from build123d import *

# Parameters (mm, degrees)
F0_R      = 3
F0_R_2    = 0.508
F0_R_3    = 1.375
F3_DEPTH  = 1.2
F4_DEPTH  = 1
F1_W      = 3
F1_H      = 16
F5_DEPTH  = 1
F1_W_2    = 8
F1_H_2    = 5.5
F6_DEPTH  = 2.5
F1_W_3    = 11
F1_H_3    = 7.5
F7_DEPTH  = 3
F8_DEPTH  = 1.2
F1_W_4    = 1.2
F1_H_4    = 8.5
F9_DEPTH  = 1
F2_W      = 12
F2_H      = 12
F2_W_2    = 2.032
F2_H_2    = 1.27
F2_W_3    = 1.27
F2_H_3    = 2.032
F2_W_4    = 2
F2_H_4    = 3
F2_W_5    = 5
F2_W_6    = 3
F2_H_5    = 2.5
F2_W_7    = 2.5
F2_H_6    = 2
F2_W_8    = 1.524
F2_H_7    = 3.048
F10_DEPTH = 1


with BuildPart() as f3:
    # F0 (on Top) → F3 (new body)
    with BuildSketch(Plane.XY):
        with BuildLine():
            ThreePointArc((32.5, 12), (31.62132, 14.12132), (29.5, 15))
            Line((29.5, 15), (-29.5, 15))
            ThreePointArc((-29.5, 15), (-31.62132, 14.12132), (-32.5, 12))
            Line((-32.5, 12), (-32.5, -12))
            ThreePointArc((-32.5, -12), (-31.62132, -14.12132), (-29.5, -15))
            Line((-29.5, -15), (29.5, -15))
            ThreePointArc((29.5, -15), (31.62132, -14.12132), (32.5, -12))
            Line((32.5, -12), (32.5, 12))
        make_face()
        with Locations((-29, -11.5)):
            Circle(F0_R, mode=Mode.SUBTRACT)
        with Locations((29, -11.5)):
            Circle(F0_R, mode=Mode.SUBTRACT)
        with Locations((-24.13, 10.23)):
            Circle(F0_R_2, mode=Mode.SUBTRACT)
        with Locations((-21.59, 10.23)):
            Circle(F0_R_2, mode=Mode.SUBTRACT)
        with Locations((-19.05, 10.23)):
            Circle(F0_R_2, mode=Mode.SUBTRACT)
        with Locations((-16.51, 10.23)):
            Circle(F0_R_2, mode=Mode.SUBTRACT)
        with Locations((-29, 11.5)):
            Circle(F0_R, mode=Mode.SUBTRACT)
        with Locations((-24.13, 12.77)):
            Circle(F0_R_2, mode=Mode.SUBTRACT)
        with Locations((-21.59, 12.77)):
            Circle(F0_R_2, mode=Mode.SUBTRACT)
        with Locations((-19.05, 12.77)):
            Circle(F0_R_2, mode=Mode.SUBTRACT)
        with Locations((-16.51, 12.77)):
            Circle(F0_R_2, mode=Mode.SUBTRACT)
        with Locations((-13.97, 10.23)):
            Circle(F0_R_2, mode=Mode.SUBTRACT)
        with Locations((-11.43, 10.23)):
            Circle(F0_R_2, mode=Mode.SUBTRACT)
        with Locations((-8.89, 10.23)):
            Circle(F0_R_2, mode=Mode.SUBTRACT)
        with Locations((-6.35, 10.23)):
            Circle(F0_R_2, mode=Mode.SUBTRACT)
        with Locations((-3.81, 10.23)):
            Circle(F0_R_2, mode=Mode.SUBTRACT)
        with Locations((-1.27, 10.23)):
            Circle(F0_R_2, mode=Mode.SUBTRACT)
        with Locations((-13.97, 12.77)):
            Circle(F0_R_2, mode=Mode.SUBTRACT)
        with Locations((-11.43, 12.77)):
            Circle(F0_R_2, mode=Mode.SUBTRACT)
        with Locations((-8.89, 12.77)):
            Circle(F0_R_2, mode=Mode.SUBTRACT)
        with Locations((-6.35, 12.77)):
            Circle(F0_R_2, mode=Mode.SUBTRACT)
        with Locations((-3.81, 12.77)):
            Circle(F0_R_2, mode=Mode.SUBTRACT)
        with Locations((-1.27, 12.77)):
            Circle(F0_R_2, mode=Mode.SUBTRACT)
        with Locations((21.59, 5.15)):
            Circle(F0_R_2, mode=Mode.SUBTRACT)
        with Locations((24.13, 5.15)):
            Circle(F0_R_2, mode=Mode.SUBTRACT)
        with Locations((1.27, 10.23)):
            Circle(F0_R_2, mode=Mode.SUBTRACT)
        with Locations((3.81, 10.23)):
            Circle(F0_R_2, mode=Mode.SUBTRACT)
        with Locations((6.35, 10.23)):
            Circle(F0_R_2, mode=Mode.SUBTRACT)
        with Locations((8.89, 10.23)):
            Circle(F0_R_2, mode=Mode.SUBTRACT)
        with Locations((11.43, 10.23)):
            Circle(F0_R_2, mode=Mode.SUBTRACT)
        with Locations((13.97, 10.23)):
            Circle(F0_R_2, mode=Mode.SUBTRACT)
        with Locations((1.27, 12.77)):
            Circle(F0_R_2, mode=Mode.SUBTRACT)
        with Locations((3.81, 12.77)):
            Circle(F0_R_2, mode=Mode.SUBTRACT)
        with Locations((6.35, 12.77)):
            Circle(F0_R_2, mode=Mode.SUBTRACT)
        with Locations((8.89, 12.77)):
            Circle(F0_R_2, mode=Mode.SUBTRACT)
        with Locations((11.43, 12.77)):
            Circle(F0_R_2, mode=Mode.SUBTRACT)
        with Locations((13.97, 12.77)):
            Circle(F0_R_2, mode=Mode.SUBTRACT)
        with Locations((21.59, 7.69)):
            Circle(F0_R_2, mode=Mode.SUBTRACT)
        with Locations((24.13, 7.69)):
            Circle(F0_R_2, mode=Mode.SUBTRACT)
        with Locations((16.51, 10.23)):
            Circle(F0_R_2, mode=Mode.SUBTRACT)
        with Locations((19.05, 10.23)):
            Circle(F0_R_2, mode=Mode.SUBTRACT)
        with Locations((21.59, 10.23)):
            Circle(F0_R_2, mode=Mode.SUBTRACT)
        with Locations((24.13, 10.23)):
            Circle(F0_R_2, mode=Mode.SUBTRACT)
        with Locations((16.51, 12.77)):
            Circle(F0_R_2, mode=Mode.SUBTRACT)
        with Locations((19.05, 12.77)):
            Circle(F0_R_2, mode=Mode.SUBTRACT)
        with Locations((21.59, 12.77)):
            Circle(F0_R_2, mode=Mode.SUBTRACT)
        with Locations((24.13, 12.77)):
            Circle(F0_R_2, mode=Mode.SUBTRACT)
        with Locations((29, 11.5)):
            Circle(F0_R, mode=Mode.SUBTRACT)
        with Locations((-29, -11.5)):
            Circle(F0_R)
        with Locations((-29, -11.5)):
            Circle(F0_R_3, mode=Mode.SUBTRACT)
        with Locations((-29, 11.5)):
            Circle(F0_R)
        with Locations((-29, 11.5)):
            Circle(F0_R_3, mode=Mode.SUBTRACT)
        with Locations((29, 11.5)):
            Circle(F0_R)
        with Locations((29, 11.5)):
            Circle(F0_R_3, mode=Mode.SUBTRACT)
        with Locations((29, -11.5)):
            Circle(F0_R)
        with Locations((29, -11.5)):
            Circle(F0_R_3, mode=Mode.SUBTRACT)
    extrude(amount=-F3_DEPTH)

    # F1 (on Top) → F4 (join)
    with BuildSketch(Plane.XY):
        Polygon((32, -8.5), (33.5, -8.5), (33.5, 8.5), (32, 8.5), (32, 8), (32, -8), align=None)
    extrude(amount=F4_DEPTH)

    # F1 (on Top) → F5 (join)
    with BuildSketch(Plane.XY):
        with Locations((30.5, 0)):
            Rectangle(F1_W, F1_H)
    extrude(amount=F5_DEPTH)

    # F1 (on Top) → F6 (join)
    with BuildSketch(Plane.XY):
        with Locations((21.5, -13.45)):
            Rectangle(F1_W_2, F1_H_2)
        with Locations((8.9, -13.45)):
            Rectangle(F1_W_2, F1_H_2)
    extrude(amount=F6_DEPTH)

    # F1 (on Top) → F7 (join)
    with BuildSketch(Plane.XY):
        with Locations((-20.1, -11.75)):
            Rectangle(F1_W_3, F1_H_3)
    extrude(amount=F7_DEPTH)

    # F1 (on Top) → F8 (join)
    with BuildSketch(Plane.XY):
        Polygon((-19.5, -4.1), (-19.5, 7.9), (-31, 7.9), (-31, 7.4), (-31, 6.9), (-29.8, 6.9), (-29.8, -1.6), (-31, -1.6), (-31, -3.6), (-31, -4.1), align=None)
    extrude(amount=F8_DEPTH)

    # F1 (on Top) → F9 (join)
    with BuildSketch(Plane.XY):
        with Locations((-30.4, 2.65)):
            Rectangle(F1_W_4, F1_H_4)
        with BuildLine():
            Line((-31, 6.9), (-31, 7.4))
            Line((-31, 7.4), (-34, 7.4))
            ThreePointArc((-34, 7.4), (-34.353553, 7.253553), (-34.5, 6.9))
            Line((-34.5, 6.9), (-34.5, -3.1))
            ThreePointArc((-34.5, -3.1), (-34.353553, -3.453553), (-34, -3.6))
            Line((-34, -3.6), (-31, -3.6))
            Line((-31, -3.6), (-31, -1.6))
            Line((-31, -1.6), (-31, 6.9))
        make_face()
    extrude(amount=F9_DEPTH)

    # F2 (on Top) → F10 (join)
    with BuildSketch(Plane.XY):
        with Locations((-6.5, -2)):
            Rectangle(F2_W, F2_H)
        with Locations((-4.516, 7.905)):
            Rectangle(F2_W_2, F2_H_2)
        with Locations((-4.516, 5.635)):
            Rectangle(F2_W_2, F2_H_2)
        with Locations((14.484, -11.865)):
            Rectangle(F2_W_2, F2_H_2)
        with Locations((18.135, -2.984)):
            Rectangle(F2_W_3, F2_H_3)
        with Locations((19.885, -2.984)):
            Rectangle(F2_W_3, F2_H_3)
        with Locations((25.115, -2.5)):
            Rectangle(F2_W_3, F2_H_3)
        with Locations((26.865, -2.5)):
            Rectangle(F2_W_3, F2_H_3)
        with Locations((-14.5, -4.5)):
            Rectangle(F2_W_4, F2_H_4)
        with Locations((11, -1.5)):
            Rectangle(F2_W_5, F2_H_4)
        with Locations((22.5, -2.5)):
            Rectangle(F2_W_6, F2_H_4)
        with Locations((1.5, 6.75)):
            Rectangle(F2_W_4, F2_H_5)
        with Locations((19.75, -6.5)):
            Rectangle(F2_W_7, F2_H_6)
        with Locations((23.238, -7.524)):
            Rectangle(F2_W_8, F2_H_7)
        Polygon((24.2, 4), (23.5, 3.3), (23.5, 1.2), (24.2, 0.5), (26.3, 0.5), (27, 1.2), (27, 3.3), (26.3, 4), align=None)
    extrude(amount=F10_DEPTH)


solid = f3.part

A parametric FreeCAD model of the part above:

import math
import FreeCAD as App
import Part
import Sketcher
from FreeCAD import Vector
Q = App.Units.Quantity


def add_polygon(sketch, points):
    """Adds a closed chain of lines whose ends are joined by coincident constraints."""
    first, n = sketch.GeometryCount, len(points)
    for a, b in zip(points, points[1:] + points[:1]):
        sketch.addGeometry(Part.LineSegment(App.Vector(*a, 0), App.Vector(*b, 0)), False)
    for i in range(n):
        sketch.addConstraint(Sketcher.Constraint("Coincident", first + i, 2, first + (i + 1) % n, 1))

doc = App.newDocument("Part")
body = doc.addObject("PartDesign::Body", "Body")

# Sketch on XY plane
sketch1 = body.newObject("Sketcher::SketchObject", "Sketch")
sketch1.AttachmentSupport = (doc.getObject("XY_Plane"), [""])
sketch1.MapMode = "FlatFace"
sketch1.addGeometry(Part.ArcOfCircle(Part.Circle(Vector(29.5, 12, 0), Vector(0, 0, 1), 3), math.radians(0), math.radians(90)), False)
sketch1.addGeometry(Part.LineSegment(Vector(29.5, 15, 0), Vector(-29.5, 15, 0)), False)
sketch1.addGeometry(Part.ArcOfCircle(Part.Circle(Vector(-29.5, 12, 0), Vector(0, 0, 1), 3), math.radians(90), math.radians(180)), False)
sketch1.addGeometry(Part.LineSegment(Vector(-32.5, 12, 0), Vector(-32.5, -12, 0)), False)
sketch1.addGeometry(Part.ArcOfCircle(Part.Circle(Vector(-29.5, -12, 0), Vector(0, 0, 1), 3), math.radians(-180), math.radians(-90)), False)
sketch1.addGeometry(Part.LineSegment(Vector(-29.5, -15, 0), Vector(29.5, -15, 0)), False)
sketch1.addGeometry(Part.ArcOfCircle(Part.Circle(Vector(29.5, -12, 0), Vector(0, 0, 1), 3), math.radians(-90), math.radians(0)), False)
sketch1.addGeometry(Part.LineSegment(Vector(32.5, -12, 0), Vector(32.5, 12, 0)), False)
sketch1.addGeometry(Part.Circle(Vector(-29, -11.5, 0), Vector(0, 0, 1), 1.4), False)
sketch1.addGeometry(Part.Circle(Vector(29, -11.5, 0), Vector(0, 0, 1), 1.4), False)
sketch1.addGeometry(Part.Circle(Vector(-29, 11.5, 0), Vector(0, 0, 1), 1.4), False)
sketch1.addGeometry(Part.Circle(Vector(-24.1, 10.2, 0), Vector(0, 0, 1), 0.5), False)
sketch1.addGeometry(Part.Circle(Vector(-24.1, 12.8, 0), Vector(0, 0, 1), 0.5), False)
sketch1.addGeometry(Part.Circle(Vector(-21.6, 10.2, 0), Vector(0, 0, 1), 0.5), False)
sketch1.addGeometry(Part.Circle(Vector(-19.1, 10.2, 0), Vector(0, 0, 1), 0.5), False)
sketch1.addGeometry(Part.Circle(Vector(-16.5, 10.2, 0), Vector(0, 0, 1), 0.5), False)
sketch1.addGeometry(Part.Circle(Vector(-21.6, 12.8, 0), Vector(0, 0, 1), 0.5), False)
sketch1.addGeometry(Part.Circle(Vector(-19.1, 12.8, 0), Vector(0, 0, 1), 0.5), False)
sketch1.addGeometry(Part.Circle(Vector(-16.5, 12.8, 0), Vector(0, 0, 1), 0.5), False)
sketch1.addGeometry(Part.Circle(Vector(-14, 10.2, 0), Vector(0, 0, 1), 0.5), False)
sketch1.addGeometry(Part.Circle(Vector(-11.4, 10.2, 0), Vector(0, 0, 1), 0.5), False)
sketch1.addGeometry(Part.Circle(Vector(-8.9, 10.2, 0), Vector(0, 0, 1), 0.5), False)
sketch1.addGeometry(Part.Circle(Vector(-14, 12.8, 0), Vector(0, 0, 1), 0.5), False)
sketch1.addGeometry(Part.Circle(Vector(-11.4, 12.8, 0), Vector(0, 0, 1), 0.5), False)
sketch1.addGeometry(Part.Circle(Vector(-8.9, 12.8, 0), Vector(0, 0, 1), 0.5), False)
sketch1.addGeometry(Part.Circle(Vector(-6.3, 10.2, 0), Vector(0, 0, 1), 0.5), False)
sketch1.addGeometry(Part.Circle(Vector(-3.8, 10.2, 0), Vector(0, 0, 1), 0.5), False)
sketch1.addGeometry(Part.Circle(Vector(-1.3, 10.2, 0), Vector(0, 0, 1), 0.5), False)
sketch1.addGeometry(Part.Circle(Vector(-6.3, 12.8, 0), Vector(0, 0, 1), 0.5), False)
sketch1.addGeometry(Part.Circle(Vector(-3.8, 12.8, 0), Vector(0, 0, 1), 0.5), False)
sketch1.addGeometry(Part.Circle(Vector(-1.3, 12.8, 0), Vector(0, 0, 1), 0.5), False)
sketch1.addGeometry(Part.Circle(Vector(21.6, 5.2, 0), Vector(0, 0, 1), 0.5), False)
sketch1.addGeometry(Part.Circle(Vector(24.1, 5.2, 0), Vector(0, 0, 1), 0.5), False)
sketch1.addGeometry(Part.Circle(Vector(1.3, 10.2, 0), Vector(0, 0, 1), 0.5), False)
sketch1.addGeometry(Part.Circle(Vector(3.8, 10.2, 0), Vector(0, 0, 1), 0.5), False)
sketch1.addGeometry(Part.Circle(Vector(6.3, 10.2, 0), Vector(0, 0, 1), 0.5), False)
sketch1.addGeometry(Part.Circle(Vector(1.3, 12.8, 0), Vector(0, 0, 1), 0.5), False)
sketch1.addGeometry(Part.Circle(Vector(3.8, 12.8, 0), Vector(0, 0, 1), 0.5), False)
sketch1.addGeometry(Part.Circle(Vector(6.3, 12.8, 0), Vector(0, 0, 1), 0.5), False)
sketch1.addGeometry(Part.Circle(Vector(8.9, 10.2, 0), Vector(0, 0, 1), 0.5), False)
sketch1.addGeometry(Part.Circle(Vector(11.4, 10.2, 0), Vector(0, 0, 1), 0.5), False)
sketch1.addGeometry(Part.Circle(Vector(14, 10.2, 0), Vector(0, 0, 1), 0.5), False)
sketch1.addGeometry(Part.Circle(Vector(8.9, 12.8, 0), Vector(0, 0, 1), 0.5), False)
sketch1.addGeometry(Part.Circle(Vector(11.4, 12.8, 0), Vector(0, 0, 1), 0.5), False)
sketch1.addGeometry(Part.Circle(Vector(14, 12.8, 0), Vector(0, 0, 1), 0.5), False)
sketch1.addGeometry(Part.Circle(Vector(21.6, 7.7, 0), Vector(0, 0, 1), 0.5), False)
sketch1.addGeometry(Part.Circle(Vector(24.1, 7.7, 0), Vector(0, 0, 1), 0.5), False)
sketch1.addGeometry(Part.Circle(Vector(16.5, 10.2, 0), Vector(0, 0, 1), 0.5), False)
sketch1.addGeometry(Part.Circle(Vector(19.1, 10.2, 0), Vector(0, 0, 1), 0.5), False)
sketch1.addGeometry(Part.Circle(Vector(21.6, 10.2, 0), Vector(0, 0, 1), 0.5), False)
sketch1.addGeometry(Part.Circle(Vector(16.5, 12.8, 0), Vector(0, 0, 1), 0.5), False)
sketch1.addGeometry(Part.Circle(Vector(19.1, 12.8, 0), Vector(0, 0, 1), 0.5), False)
sketch1.addGeometry(Part.Circle(Vector(21.6, 12.8, 0), Vector(0, 0, 1), 0.5), False)
sketch1.addGeometry(Part.Circle(Vector(24.1, 10.2, 0), Vector(0, 0, 1), 0.5), False)
sketch1.addGeometry(Part.Circle(Vector(29, 11.5, 0), Vector(0, 0, 1), 1.4), False)
sketch1.addGeometry(Part.Circle(Vector(24.1, 12.8, 0), Vector(0, 0, 1), 0.5), False)
sketch1.addConstraint(Sketcher.Constraint("Tangent", 0, 2, 1, 1))
sketch1.addConstraint(Sketcher.Constraint("Tangent", 1, 2, 2, 1))
sketch1.addConstraint(Sketcher.Constraint("Tangent", 2, 2, 3, 1))
sketch1.addConstraint(Sketcher.Constraint("Tangent", 3, 2, 4, 1))
sketch1.addConstraint(Sketcher.Constraint("Tangent", 4, 2, 5, 1))
sketch1.addConstraint(Sketcher.Constraint("Tangent", 5, 2, 6, 1))
sketch1.addConstraint(Sketcher.Constraint("Tangent", 6, 2, 7, 1))
sketch1.addConstraint(Sketcher.Constraint("Tangent", 7, 2, 0, 1))
sketch1.addConstraint(Sketcher.Constraint("Horizontal", 1))
sketch1.addConstraint(Sketcher.Constraint("Vertical", 3))
sketch1.addConstraint(Sketcher.Constraint("Horizontal", 5))
sketch1.addConstraint(Sketcher.Constraint("Vertical", 7))
sketch1.addConstraint(Sketcher.Constraint("Equal", 0, 2))
sketch1.addConstraint(Sketcher.Constraint("Equal", 2, 4))
sketch1.addConstraint(Sketcher.Constraint("Equal", 4, 6))
sketch1.addConstraint(Sketcher.Constraint("Equal", 8, 9))
sketch1.addConstraint(Sketcher.Constraint("Equal", 9, 10))
sketch1.addConstraint(Sketcher.Constraint("Equal", 11, 12))
sketch1.addConstraint(Sketcher.Constraint("Equal", 12, 13))
sketch1.addConstraint(Sketcher.Constraint("Equal", 13, 14))
sketch1.addConstraint(Sketcher.Constraint("Equal", 14, 15))
sketch1.addConstraint(Sketcher.Constraint("Equal", 15, 16))
sketch1.addConstraint(Sketcher.Constraint("Equal", 16, 17))
sketch1.addConstraint(Sketcher.Constraint("Equal", 17, 18))
sketch1.addConstraint(Sketcher.Constraint("Equal", 18, 19))
sketch1.addConstraint(Sketcher.Constraint("Equal", 19, 20))
sketch1.addConstraint(Sketcher.Constraint("Equal", 20, 21))
sketch1.addConstraint(Sketcher.Constraint("Equal", 21, 22))
sketch1.addConstraint(Sketcher.Constraint("Equal", 22, 23))
sketch1.addConstraint(Sketcher.Constraint("Equal", 23, 24))
sketch1.addConstraint(Sketcher.Constraint("Equal", 24, 25))
sketch1.addConstraint(Sketcher.Constraint("Equal", 25, 26))
sketch1.addConstraint(Sketcher.Constraint("Equal", 26, 27))
sketch1.addConstraint(Sketcher.Constraint("Equal", 27, 28))
sketch1.addConstraint(Sketcher.Constraint("Equal", 28, 29))
sketch1.addConstraint(Sketcher.Constraint("Equal", 29, 30))
sketch1.addConstraint(Sketcher.Constraint("Equal", 30, 31))
sketch1.addConstraint(Sketcher.Constraint("Equal", 31, 32))
sketch1.addConstraint(Sketcher.Constraint("Equal", 32, 33))
sketch1.addConstraint(Sketcher.Constraint("Equal", 33, 34))
sketch1.addConstraint(Sketcher.Constraint("Equal", 34, 35))
sketch1.addConstraint(Sketcher.Constraint("Equal", 35, 36))
sketch1.addConstraint(Sketcher.Constraint("Equal", 36, 37))
sketch1.addConstraint(Sketcher.Constraint("Equal", 37, 38))
sketch1.addConstraint(Sketcher.Constraint("Equal", 38, 39))
sketch1.addConstraint(Sketcher.Constraint("Equal", 39, 40))
sketch1.addConstraint(Sketcher.Constraint("Equal", 40, 41))
sketch1.addConstraint(Sketcher.Constraint("Equal", 41, 42))
sketch1.addConstraint(Sketcher.Constraint("Equal", 42, 43))
sketch1.addConstraint(Sketcher.Constraint("Equal", 43, 44))
sketch1.addConstraint(Sketcher.Constraint("Equal", 44, 45))
sketch1.addConstraint(Sketcher.Constraint("Equal", 45, 46))
sketch1.addConstraint(Sketcher.Constraint("Equal", 46, 47))
sketch1.addConstraint(Sketcher.Constraint("Equal", 47, 48))
sketch1.addConstraint(Sketcher.Constraint("Equal", 48, 49))
sketch1.addConstraint(Sketcher.Constraint("Equal", 49, 50))
sketch1.addConstraint(Sketcher.Constraint("Equal", 50, 51))
sketch1.addConstraint(Sketcher.Constraint("Equal", 51, 52))
sketch1.addConstraint(Sketcher.Constraint("Equal", 52, 53))
sketch1.addConstraint(Sketcher.Constraint("Equal", 10, 54))
sketch1.addConstraint(Sketcher.Constraint("Equal", 53, 55))
sketch1.addConstraint(Sketcher.Constraint("Symmetric", 0, 3, 4, 3, -1, 1))
sketch1.addConstraint(Sketcher.Constraint("Symmetric", 9, 3, 10, 3, -1, 1))
sketch1.addConstraint(Sketcher.Constraint("Symmetric", 8, 3, 54, 3, -1, 1))
sketch1.addConstraint(Sketcher.Constraint("Symmetric", 8, 3, 9, 3, -2))
sketch1.addConstraint(Sketcher.Constraint("Symmetric", 27, 3, 33, 3, -2))
sketch1.addConstraint(Sketcher.Constraint("Symmetric", 26, 3, 34, 3, -2))
sketch1.addConstraint(Sketcher.Constraint("Symmetric", 25, 3, 35, 3, -2))
sketch1.addConstraint(Sketcher.Constraint("Symmetric", 30, 3, 36, 3, -2))
sketch1.addConstraint(Sketcher.Constraint("Symmetric", 29, 3, 37, 3, -2))
sketch1.addConstraint(Sketcher.Constraint("Symmetric", 28, 3, 38, 3, -2))
sketch1.addConstraint(Sketcher.Constraint("Symmetric", 21, 3, 39, 3, -2))
sketch1.addConstraint(Sketcher.Constraint("Symmetric", 20, 3, 40, 3, -2))
sketch1.addConstraint(Sketcher.Constraint("Symmetric", 19, 3, 41, 3, -2))
sketch1.addConstraint(Sketcher.Constraint("Symmetric", 24, 3, 42, 3, -2))
sketch1.addConstraint(Sketcher.Constraint("Symmetric", 23, 3, 43, 3, -2))
sketch1.addConstraint(Sketcher.Constraint("Symmetric", 22, 3, 44, 3, -2))
sketch1.addConstraint(Sketcher.Constraint("Symmetric", 15, 3, 47, 3, -2))
sketch1.addConstraint(Sketcher.Constraint("Symmetric", 14, 3, 48, 3, -2))
sketch1.addConstraint(Sketcher.Constraint("Symmetric", 13, 3, 49, 3, -2))
sketch1.addConstraint(Sketcher.Constraint("Symmetric", 18, 3, 50, 3, -2))
sketch1.addConstraint(Sketcher.Constraint("Symmetric", 17, 3, 51, 3, -2))
sketch1.addConstraint(Sketcher.Constraint("Symmetric", 16, 3, 52, 3, -2))
sketch1.addConstraint(Sketcher.Constraint("Symmetric", 11, 3, 53, 3, -2))
sketch1.addConstraint(Sketcher.Constraint("Symmetric", 12, 3, 55, 3, -2))
sketch1.addConstraint(Sketcher.Constraint("Horizontal", 11, 3, 13, 3))
sketch1.addConstraint(Sketcher.Constraint("Horizontal", 13, 3, 14, 3))
sketch1.addConstraint(Sketcher.Constraint("Horizontal", 14, 3, 15, 3))
sketch1.addConstraint(Sketcher.Constraint("Horizontal", 12, 3, 16, 3))
sketch1.addConstraint(Sketcher.Constraint("Horizontal", 16, 3, 17, 3))
sketch1.addConstraint(Sketcher.Constraint("Horizontal", 17, 3, 18, 3))
sketch1.addConstraint(Sketcher.Constraint("Horizontal", 15, 3, 19, 3))
sketch1.addConstraint(Sketcher.Constraint("Horizontal", 19, 3, 20, 3))
sketch1.addConstraint(Sketcher.Constraint("Horizontal", 20, 3, 21, 3))
sketch1.addConstraint(Sketcher.Constraint("Horizontal", 18, 3, 22, 3))
sketch1.addConstraint(Sketcher.Constraint("Horizontal", 22, 3, 23, 3))
sketch1.addConstraint(Sketcher.Constraint("Horizontal", 23, 3, 24, 3))
sketch1.addConstraint(Sketcher.Constraint("Horizontal", 21, 3, 25, 3))
sketch1.addConstraint(Sketcher.Constraint("Horizontal", 25, 3, 26, 3))
sketch1.addConstraint(Sketcher.Constraint("Horizontal", 26, 3, 27, 3))
sketch1.addConstraint(Sketcher.Constraint("Horizontal", 24, 3, 28, 3))
sketch1.addConstraint(Sketcher.Constraint("Horizontal", 28, 3, 29, 3))
sketch1.addConstraint(Sketcher.Constraint("Horizontal", 29, 3, 30, 3))
sketch1.addConstraint(Sketcher.Constraint("Horizontal", 31, 3, 32, 3))
sketch1.addConstraint(Sketcher.Constraint("Horizontal", 45, 3, 46, 3))
sketch1.addConstraint(Sketcher.Constraint("Vertical", 11, 3, 12, 3))
sketch1.addConstraint(Sketcher.Constraint("Vertical", 13, 3, 16, 3))
sketch1.addConstraint(Sketcher.Constraint("Vertical", 14, 3, 17, 3))
sketch1.addConstraint(Sketcher.Constraint("Vertical", 15, 3, 18, 3))
sketch1.addConstraint(Sketcher.Constraint("Vertical", 19, 3, 22, 3))
sketch1.addConstraint(Sketcher.Constraint("Vertical", 20, 3, 23, 3))
sketch1.addConstraint(Sketcher.Constraint("Vertical", 21, 3, 24, 3))
sketch1.addConstraint(Sketcher.Constraint("Vertical", 25, 3, 28, 3))
sketch1.addConstraint(Sketcher.Constraint("Vertical", 26, 3, 29, 3))
sketch1.addConstraint(Sketcher.Constraint("Vertical", 27, 3, 30, 3))
sketch1.addConstraint(Sketcher.Constraint("Vertical", 31, 3, 45, 3))
sketch1.addConstraint(Sketcher.Constraint("Vertical", 32, 3, 46, 3))
sketch1.addConstraint(Sketcher.Constraint("Vertical", 45, 3, 49, 3))
sketch1.addConstraint(Sketcher.Constraint("Vertical", 46, 3, 53, 3))
sketch1.addConstraint(Sketcher.Constraint("Radius", 0, Q("3.000001 mm")))
sketch1.addConstraint(Sketcher.Constraint("Diameter", 8, Q("2.75 mm")))
sketch1.addConstraint(Sketcher.Constraint("DistanceX", 1, 2, 1, 1, Q("59 mm")))
sketch1.addConstraint(Sketcher.Constraint("DistanceY", 3, 2, 3, 1, Q("24 mm")))
sketch1.addConstraint(Sketcher.Constraint("Diameter", 11, Q("1.016 mm")))
sketch1.addConstraint(Sketcher.Constraint("DistanceX", 8, 3, -1, 1, Q("29 mm")))
sketch1.addConstraint(Sketcher.Constraint("DistanceY", 8, 3, 10, 3, Q("23 mm")))
sketch1.addConstraint(Sketcher.Constraint("DistanceX", 27, 3, 32, 3, Q("25.4 mm")))
sketch1.addConstraint(Sketcher.Constraint("DistanceX", 11, 3, -1, 1, Q("24.13 mm")))
sketch1.addConstraint(Sketcher.Constraint("DistanceY", -1, 1, 11, 3, Q("10.23 mm")))
sketch1.addConstraint(Sketcher.Constraint("DistanceY", -1, 1, 12, 3, Q("12.77 mm")))
sketch1.addConstraint(Sketcher.Constraint("DistanceX", 13, 3, -1, 1, Q("21.59 mm")))
sketch1.addConstraint(Sketcher.Constraint("DistanceX", 14, 3, -1, 1, Q("19.05 mm")))
sketch1.addConstraint(Sketcher.Constraint("DistanceX", 15, 3, -1, 1, Q("16.51 mm")))
sketch1.addConstraint(Sketcher.Constraint("DistanceX", 19, 3, -1, 1, Q("13.97 mm")))
sketch1.addConstraint(Sketcher.Constraint("DistanceX", 20, 3, -1, 1, Q("11.43 mm")))
sketch1.addConstraint(Sketcher.Constraint("DistanceX", 21, 3, -1, 1, Q("8.89 mm")))
sketch1.addConstraint(Sketcher.Constraint("DistanceX", 25, 3, -1, 1, Q("6.35 mm")))
sketch1.addConstraint(Sketcher.Constraint("DistanceX", 26, 3, -1, 1, Q("3.81 mm")))
sketch1.addConstraint(Sketcher.Constraint("DistanceY", -1, 1, 31, 3, Q("5.15 mm")))
sketch1.addConstraint(Sketcher.Constraint("DistanceY", -1, 1, 45, 3, Q("7.69 mm")))
pad1 = body.newObject("PartDesign::Pad", "Pad")
pad1.Profile = sketch1
pad1.Length = 1.2
pad1.Reversed = True

# Sketch on XY plane
sketch2 = body.newObject("Sketcher::SketchObject", "Sketch001")
sketch2.AttachmentSupport = (doc.getObject("XY_Plane"), [""])
sketch2.MapMode = "FlatFace"
add_polygon(sketch2, [(32, -8.5), (33.5, -8.5), (33.5, 8.5), (32, 8.5)])  # lines 0-3
sketch2.addConstraint(Sketcher.Constraint("Horizontal", 0))
sketch2.addConstraint(Sketcher.Constraint("Vertical", 1))
sketch2.addConstraint(Sketcher.Constraint("Horizontal", 2))
sketch2.addConstraint(Sketcher.Constraint("Vertical", 3))
sketch2.addConstraint(Sketcher.Constraint("DistanceY", 1, 1, 1, 2, Q("17 mm")))
sketch2.addConstraint(Sketcher.Constraint("DistanceX", 0, 1, 0, 2, Q("1.5 mm")))
sketch2.addConstraint(Sketcher.Constraint("DistanceX", -1, 1, 2, 2, Q("32 mm")))
sketch2.addConstraint(Sketcher.Constraint("DistanceY", 0, 2, -1, 1, Q("8.5 mm")))
pad2 = body.newObject("PartDesign::Pad", "Pad001")
pad2.Profile = sketch2
pad2.Length = 1

# Sketch on XY plane
sketch3 = body.newObject("Sketcher::SketchObject", "Sketch002")
sketch3.AttachmentSupport = (doc.getObject("XY_Plane"), [""])
sketch3.MapMode = "FlatFace"
add_polygon(sketch3, [(29, 8), (29, -8), (32, -8), (32, 8)])  # lines 0-3
sketch3.addConstraint(Sketcher.Constraint("Vertical", 0))
sketch3.addConstraint(Sketcher.Constraint("Horizontal", 1))
sketch3.addConstraint(Sketcher.Constraint("Vertical", 2))
sketch3.addConstraint(Sketcher.Constraint("Horizontal", 3))
sketch3.addConstraint(Sketcher.Constraint("DistanceX", 1, 1, 1, 2, Q("3 mm")))
sketch3.addConstraint(Sketcher.Constraint("DistanceY", 0, 2, 0, 1, Q("16 mm")))
sketch3.addConstraint(Sketcher.Constraint("DistanceX", -1, 1, 0, 2, Q("29 mm")))
sketch3.addConstraint(Sketcher.Constraint("DistanceY", 0, 2, -1, 1, Q("8 mm")))
pad3 = body.newObject("PartDesign::Pad", "Pad002")
pad3.Profile = sketch3
pad3.Length = 1

# Sketch on XY plane
sketch4 = body.newObject("Sketcher::SketchObject", "Sketch003")
sketch4.AttachmentSupport = (doc.getObject("XY_Plane"), [""])
sketch4.MapMode = "FlatFace"
add_polygon(sketch4, [(18, -11), (18, -16), (26, -16), (26, -11)])  # lines 0-3
add_polygon(sketch4, [(5, -11), (5, -16), (13, -16), (13, -11)])  # lines 4-7
sketch4.addConstraint(Sketcher.Constraint("Vertical", 0))
sketch4.addConstraint(Sketcher.Constraint("Horizontal", 1))
sketch4.addConstraint(Sketcher.Constraint("Vertical", 2))
sketch4.addConstraint(Sketcher.Constraint("Horizontal", 3))
sketch4.addConstraint(Sketcher.Constraint("Vertical", 4))
sketch4.addConstraint(Sketcher.Constraint("Horizontal", 5))
sketch4.addConstraint(Sketcher.Constraint("Vertical", 6))
sketch4.addConstraint(Sketcher.Constraint("Horizontal", 7))
sketch4.addConstraint(Sketcher.Constraint("Horizontal", 1, 2, 4, 2))
sketch4.addConstraint(Sketcher.Constraint("Horizontal", 3, 2, 6, 2))
sketch4.addConstraint(Sketcher.Constraint("Equal", 3, 5))
sketch4.addConstraint(Sketcher.Constraint("DistanceX", 1, 1, 1, 2, Q("8 mm")))
sketch4.addConstraint(Sketcher.Constraint("DistanceY", 0, 2, 0, 1, Q("5.5 mm")))
sketch4.addConstraint(Sketcher.Constraint("DistanceX", -1, 1, 0, 2, Q("17.5 mm")))
sketch4.addConstraint(Sketcher.Constraint("DistanceY", 0, 2, -1, 1, Q("16.2 mm")))
sketch4.addConstraint(Sketcher.Constraint("DistanceX", -1, 1, 4, 2, Q("4.9 mm")))
pad4 = body.newObject("PartDesign::Pad", "Pad003")
pad4.Profile = sketch4
pad4.Length = 2.5

# Sketch on XY plane
sketch5 = body.newObject("Sketcher::SketchObject", "Sketch004")
sketch5.AttachmentSupport = (doc.getObject("XY_Plane"), [""])
sketch5.MapMode = "FlatFace"
add_polygon(sketch5, [(-26, -8), (-26, -16), (-15, -16), (-15, -8)])  # lines 0-3
sketch5.addConstraint(Sketcher.Constraint("Vertical", 0))
sketch5.addConstraint(Sketcher.Constraint("Horizontal", 1))
sketch5.addConstraint(Sketcher.Constraint("Vertical", 2))
sketch5.addConstraint(Sketcher.Constraint("Horizontal", 3))
sketch5.addConstraint(Sketcher.Constraint("DistanceX", 1, 1, 1, 2, Q("11 mm")))
sketch5.addConstraint(Sketcher.Constraint("DistanceY", 0, 2, 0, 1, Q("7.5 mm")))
sketch5.addConstraint(Sketcher.Constraint("DistanceY", 2, 2, -1, 1, Q("8 mm")))
sketch5.addConstraint(Sketcher.Constraint("DistanceX", 0, 2, -1, 1, Q("25.6 mm")))
pad5 = body.newObject("PartDesign::Pad", "Pad004")
pad5.Profile = sketch5
pad5.Length = 3

# Sketch on XY plane
sketch6 = body.newObject("Sketcher::SketchObject", "Sketch005")
sketch6.AttachmentSupport = (doc.getObject("XY_Plane"), [""])
sketch6.MapMode = "FlatFace"
add_polygon(sketch6, [(-19.5, -4.1), (-19.5, 7.9), (-31, 7.9), (-31, 6.9), (-29.8, 6.9), (-29.8, -1.6), (-31, -1.6), (-31, -4.1)])  # lines 0-7
sketch6.addConstraint(Sketcher.Constraint("Vertical", 0))
sketch6.addConstraint(Sketcher.Constraint("Horizontal", 1))
sketch6.addConstraint(Sketcher.Constraint("Vertical", 2))
sketch6.addConstraint(Sketcher.Constraint("Horizontal", 3))
sketch6.addConstraint(Sketcher.Constraint("Vertical", 4))
sketch6.addConstraint(Sketcher.Constraint("Horizontal", 5))
sketch6.addConstraint(Sketcher.Constraint("Vertical", 6))
sketch6.addConstraint(Sketcher.Constraint("Horizontal", 7))
sketch6.addConstraint(Sketcher.Constraint("Vertical", 2, 2, 5, 2))
sketch6.addConstraint(Sketcher.Constraint("DistanceY", 0, 1, 0, 2, Q("12 mm")))
sketch6.addConstraint(Sketcher.Constraint("DistanceY", 2, 2, 2, 1, Q("1 mm")))
sketch6.addConstraint(Sketcher.Constraint("DistanceX", 1, 2, 1, 1, Q("11.5 mm")))
sketch6.addConstraint(Sketcher.Constraint("DistanceX", 3, 1, 3, 2, Q("1.2 mm")))
sketch6.addConstraint(Sketcher.Constraint("DistanceY", 4, 2, 4, 1, Q("8.5 mm")))
sketch6.addConstraint(Sketcher.Constraint("DistanceX", 1, 2, -1, 1, Q("31 mm")))
sketch6.addConstraint(Sketcher.Constraint("DistanceY", -1, 1, 0, 2, Q("7.9 mm")))
pad6 = body.newObject("PartDesign::Pad", "Pad005")
pad6.Profile = sketch6
pad6.Length = 1.2

# Sketch on XY plane
sketch7 = body.newObject("Sketcher::SketchObject", "Sketch006")
sketch7.AttachmentSupport = (doc.getObject("XY_Plane"), [""])
sketch7.MapMode = "FlatFace"
sketch7.addGeometry(Part.LineSegment(Vector(-31, -1.6, 0), Vector(-29.8, -1.6, 0)), False)
sketch7.addGeometry(Part.LineSegment(Vector(-29.8, -1.6, 0), Vector(-29.8, 6.9, 0)), False)
sketch7.addGeometry(Part.LineSegment(Vector(-29.8, 6.9, 0), Vector(-31, 6.9, 0)), False)
sketch7.addGeometry(Part.LineSegment(Vector(-31, 6.9, 0), Vector(-31, 7.4, 0)), False)
sketch7.addGeometry(Part.LineSegment(Vector(-31, 7.4, 0), Vector(-34, 7.4, 0)), False)
sketch7.addGeometry(Part.ArcOfCircle(Part.Circle(Vector(-34, 6.9, 0), Vector(0, 0, 1), 0.5), math.radians(90), math.radians(180)), False)
sketch7.addGeometry(Part.LineSegment(Vector(-34.5, 6.9, 0), Vector(-34.5, -3.1, 0)), False)
sketch7.addGeometry(Part.ArcOfCircle(Part.Circle(Vector(-34, -3.1, 0), Vector(0, 0, 1), 0.5), math.radians(-180), math.radians(-90)), False)
sketch7.addGeometry(Part.LineSegment(Vector(-34, -3.6, 0), Vector(-31, -3.6, 0)), False)
sketch7.addGeometry(Part.LineSegment(Vector(-31, -3.6, 0), Vector(-31, -1.6, 0)), False)
sketch7.addConstraint(Sketcher.Constraint("Coincident", 0, 2, 1, 1))
sketch7.addConstraint(Sketcher.Constraint("Coincident", 1, 2, 2, 1))
sketch7.addConstraint(Sketcher.Constraint("Coincident", 2, 2, 3, 1))
sketch7.addConstraint(Sketcher.Constraint("Coincident", 3, 2, 4, 1))
sketch7.addConstraint(Sketcher.Constraint("Coincident", 4, 2, 5, 1))
sketch7.addConstraint(Sketcher.Constraint("Coincident", 5, 2, 6, 1))
sketch7.addConstraint(Sketcher.Constraint("Coincident", 6, 2, 7, 1))
sketch7.addConstraint(Sketcher.Constraint("Coincident", 7, 2, 8, 1))
sketch7.addConstraint(Sketcher.Constraint("Coincident", 8, 2, 9, 1))
sketch7.addConstraint(Sketcher.Constraint("Coincident", 9, 2, 0, 1))
sketch7.addConstraint(Sketcher.Constraint("Horizontal", 0))
sketch7.addConstraint(Sketcher.Constraint("Vertical", 1))
sketch7.addConstraint(Sketcher.Constraint("Horizontal", 2))
sketch7.addConstraint(Sketcher.Constraint("Vertical", 3))
sketch7.addConstraint(Sketcher.Constraint("Horizontal", 4))
sketch7.addConstraint(Sketcher.Constraint("Vertical", 6))
sketch7.addConstraint(Sketcher.Constraint("Horizontal", 8))
sketch7.addConstraint(Sketcher.Constraint("Vertical", 9))
sketch7.addConstraint(Sketcher.Constraint("Equal", 5, 7))
sketch7.addConstraint(Sketcher.Constraint("Horizontal", 5, 3, 1, 2))
sketch7.addConstraint(Sketcher.Constraint("Horizontal", 2, 2, 5, 2))
sketch7.addConstraint(Sketcher.Constraint("Horizontal", 7, 3, 6, 2))
sketch7.addConstraint(Sketcher.Constraint("Vertical", 7, 3, 4, 2))
sketch7.addConstraint(Sketcher.Constraint("Vertical", 4, 2, 7, 2))
sketch7.addConstraint(Sketcher.Constraint("Vertical", 3, 2, 8, 2))
sketch7.addConstraint(Sketcher.Constraint("Radius", 5, Q("0.500001 mm")))
sketch7.addConstraint(Sketcher.Constraint("DistanceX", 4, 2, 4, 1, Q("3 mm")))
sketch7.addConstraint(Sketcher.Constraint("DistanceY", 6, 2, 6, 1, Q("10 mm")))
sketch7.addConstraint(Sketcher.Constraint("DistanceY", 9, 1, 9, 2, Q("2 mm")))
sketch7.addConstraint(Sketcher.Constraint("DistanceX", 0, 1, 0, 2, Q("1.2 mm")))
sketch7.addConstraint(Sketcher.Constraint("DistanceX", 5, 3, -1, 1, Q("33.999999 mm")))
sketch7.addConstraint(Sketcher.Constraint("DistanceY", -1, 1, 5, 3, Q("6.899999 mm")))
pad7 = body.newObject("PartDesign::Pad", "Pad006")
pad7.Profile = sketch7
pad7.Length = 1

# Sketch on XY plane
sketch8 = body.newObject("Sketcher::SketchObject", "Sketch007")
sketch8.AttachmentSupport = (doc.getObject("XY_Plane"), [""])
sketch8.MapMode = "FlatFace"
add_polygon(sketch8, [(-12.5, 4), (-12.5, -8), (-0.5, -8), (-0.5, 4)])  # lines 0-3
add_polygon(sketch8, [(-5.5, 8.5), (-5.5, 7.3), (-3.5, 7.3), (-3.5, 8.5)])  # lines 4-7
add_polygon(sketch8, [(-5.5, 6.3), (-5.5, 5), (-3.5, 5), (-3.5, 6.3)])  # lines 8-11
add_polygon(sketch8, [(13.5, -11.2), (13.5, -12.5), (15.5, -12.5), (15.5, -11.2)])  # lines 12-15
add_polygon(sketch8, [(17.5, -2), (17.5, -4), (18.8, -4), (18.8, -2)])  # lines 16-19
add_polygon(sketch8, [(19.2, -2), (19.2, -4), (20.5, -4), (20.5, -2)])  # lines 20-23
add_polygon(sketch8, [(24.5, -1.5), (24.5, -3.5), (25.8, -3.5), (25.8, -1.5)])  # lines 24-27
add_polygon(sketch8, [(26.2, -1.5), (26.2, -3.5), (27.5, -3.5), (27.5, -1.5)])  # lines 28-31
add_polygon(sketch8, [(-15.5, -3), (-15.5, -6), (-13.5, -6), (-13.5, -3)])  # lines 32-35
add_polygon(sketch8, [(8.5, 0), (8.5, -3), (13.5, -3), (13.5, 0)])  # lines 36-39
add_polygon(sketch8, [(21, -1), (21, -4), (24, -4), (24, -1)])  # lines 40-43
add_polygon(sketch8, [(0.5, 8), (0.5, 5.5), (2.5, 5.5), (2.5, 8)])  # lines 44-47
add_polygon(sketch8, [(18.5, -5.5), (18.5, -7.5), (21, -7.5), (21, -5.5)])  # lines 48-51
add_polygon(sketch8, [(22.5, -6), (22.5, -9), (24, -9), (24, -6)])  # lines 52-55
add_polygon(sketch8, [(24.2, 4), (23.5, 3.3), (23.5, 1.2), (24.2, 0.5), (26.3, 0.5), (27, 1.2), (27, 3.3), (26.3, 4)])  # lines 56-63
sketch8.addConstraint(Sketcher.Constraint("Vertical", 0))
sketch8.addConstraint(Sketcher.Constraint("Horizontal", 1))
sketch8.addConstraint(Sketcher.Constraint("Vertical", 2))
sketch8.addConstraint(Sketcher.Constraint("Horizontal", 3))
sketch8.addConstraint(Sketcher.Constraint("Vertical", 4))
sketch8.addConstraint(Sketcher.Constraint("Horizontal", 5))
sketch8.addConstraint(Sketcher.Constraint("Vertical", 6))
sketch8.addConstraint(Sketcher.Constraint("Horizontal", 7))
sketch8.addConstraint(Sketcher.Constraint("Vertical", 8))
sketch8.addConstraint(Sketcher.Constraint("Horizontal", 9))
sketch8.addConstraint(Sketcher.Constraint("Vertical", 10))
sketch8.addConstraint(Sketcher.Constraint("Horizontal", 11))
sketch8.addConstraint(Sketcher.Constraint("Vertical", 12))
sketch8.addConstraint(Sketcher.Constraint("Horizontal", 13))
sketch8.addConstraint(Sketcher.Constraint("Vertical", 14))
sketch8.addConstraint(Sketcher.Constraint("Horizontal", 15))
sketch8.addConstraint(Sketcher.Constraint("Vertical", 16))
sketch8.addConstraint(Sketcher.Constraint("Horizontal", 17))
sketch8.addConstraint(Sketcher.Constraint("Vertical", 18))
sketch8.addConstraint(Sketcher.Constraint("Horizontal", 19))
sketch8.addConstraint(Sketcher.Constraint("Vertical", 20))
sketch8.addConstraint(Sketcher.Constraint("Horizontal", 21))
sketch8.addConstraint(Sketcher.Constraint("Vertical", 22))
sketch8.addConstraint(Sketcher.Constraint("Horizontal", 23))
sketch8.addConstraint(Sketcher.Constraint("Vertical", 24))
sketch8.addConstraint(Sketcher.Constraint("Horizontal", 25))
sketch8.addConstraint(Sketcher.Constraint("Vertical", 26))
sketch8.addConstraint(Sketcher.Constraint("Horizontal", 27))
sketch8.addConstraint(Sketcher.Constraint("Vertical", 28))
sketch8.addConstraint(Sketcher.Constraint("Horizontal", 29))
sketch8.addConstraint(Sketcher.Constraint("Vertical", 30))
sketch8.addConstraint(Sketcher.Constraint("Horizontal", 31))
sketch8.addConstraint(Sketcher.Constraint("Vertical", 32))
sketch8.addConstraint(Sketcher.Constraint("Horizontal", 33))
sketch8.addConstraint(Sketcher.Constraint("Vertical", 34))
sketch8.addConstraint(Sketcher.Constraint("Horizontal", 35))
sketch8.addConstraint(Sketcher.Constraint("Vertical", 36))
sketch8.addConstraint(Sketcher.Constraint("Horizontal", 37))
sketch8.addConstraint(Sketcher.Constraint("Vertical", 38))
sketch8.addConstraint(Sketcher.Constraint("Horizontal", 39))
sketch8.addConstraint(Sketcher.Constraint("Vertical", 40))
sketch8.addConstraint(Sketcher.Constraint("Horizontal", 41))
sketch8.addConstraint(Sketcher.Constraint("Vertical", 42))
sketch8.addConstraint(Sketcher.Constraint("Horizontal", 43))
sketch8.addConstraint(Sketcher.Constraint("Vertical", 44))
sketch8.addConstraint(Sketcher.Constraint("Horizontal", 45))
sketch8.addConstraint(Sketcher.Constraint("Vertical", 46))
sketch8.addConstraint(Sketcher.Constraint("Horizontal", 47))
sketch8.addConstraint(Sketcher.Constraint("Vertical", 48))
sketch8.addConstraint(Sketcher.Constraint("Horizontal", 49))
sketch8.addConstraint(Sketcher.Constraint("Vertical", 50))
sketch8.addConstraint(Sketcher.Constraint("Horizontal", 51))
sketch8.addConstraint(Sketcher.Constraint("Vertical", 52))
sketch8.addConstraint(Sketcher.Constraint("Horizontal", 53))
sketch8.addConstraint(Sketcher.Constraint("Vertical", 54))
sketch8.addConstraint(Sketcher.Constraint("Horizontal", 55))
sketch8.addConstraint(Sketcher.Constraint("Vertical", 57))
sketch8.addConstraint(Sketcher.Constraint("Horizontal", 59))
sketch8.addConstraint(Sketcher.Constraint("Vertical", 61))
sketch8.addConstraint(Sketcher.Constraint("Horizontal", 63))
sketch8.addConstraint(Sketcher.Constraint("Symmetric", 1, 2, 47, 2, -1, 1))
sketch8.addConstraint(Sketcher.Constraint("Symmetric", 34, 2, 37, 2, -2))
sketch8.addConstraint(Sketcher.Constraint("PointOnObject", 38, 2, -1))
sketch8.addConstraint(Sketcher.Constraint("Perpendicular", 56, 58))
sketch8.addConstraint(Sketcher.Constraint("Perpendicular", 58, 60))
sketch8.addConstraint(Sketcher.Constraint("Perpendicular", 60, 62))
sketch8.addConstraint(Sketcher.Constraint("Horizontal", 17, 2, 20, 2))
sketch8.addConstraint(Sketcher.Constraint("Horizontal", 19, 2, 22, 2))
sketch8.addConstraint(Sketcher.Constraint("Horizontal", 25, 2, 28, 2))
sketch8.addConstraint(Sketcher.Constraint("Horizontal", 27, 2, 30, 2))
sketch8.addConstraint(Sketcher.Constraint("Horizontal", 21, 2, 40, 2))
sketch8.addConstraint(Sketcher.Constraint("Horizontal", 33, 2, 54, 2))
sketch8.addConstraint(Sketcher.Constraint("Horizontal", 57, 2, 60, 2))
sketch8.addConstraint(Sketcher.Constraint("Horizontal", 56, 2, 61, 2))
sketch8.addConstraint(Sketcher.Constraint("Horizontal", 3, 2, 62, 2))
sketch8.addConstraint(Sketcher.Constraint("Vertical", 7, 2, 8, 2))
sketch8.addConstraint(Sketcher.Constraint("Vertical", 6, 2, 9, 2))
sketch8.addConstraint(Sketcher.Constraint("Vertical", 43, 2, 49, 2))
sketch8.addConstraint(Sketcher.Constraint("Vertical", 42, 2, 53, 2))
sketch8.addConstraint(Sketcher.Constraint("Vertical", 59, 2, 62, 2))
sketch8.addConstraint(Sketcher.Constraint("Vertical", 58, 2, 63, 2))
sketch8.addConstraint(Sketcher.Constraint("Equal", 11, 13))
sketch8.addConstraint(Sketcher.Constraint("Equal", 19, 21))
sketch8.addConstraint(Sketcher.Constraint("Equal", 23, 25))
sketch8.addConstraint(Sketcher.Constraint("Equal", 27, 29))
sketch8.addConstraint(Sketcher.Constraint("Equal", 35, 45))
sketch8.addConstraint(Sketcher.Constraint("Equal", 3, 0))
sketch8.addConstraint(Sketcher.Constraint("Equal", 31, 4))
sketch8.addConstraint(Sketcher.Constraint("Equal", 6, 8))
sketch8.addConstraint(Sketcher.Constraint("Equal", 10, 12))
sketch8.addConstraint(Sketcher.Constraint("Equal", 15, 16))
sketch8.addConstraint(Sketcher.Constraint("Equal", 22, 24))
sketch8.addConstraint(Sketcher.Constraint("Equal", 43, 32))
sketch8.addConstraint(Sketcher.Constraint("Equal", 34, 36))
sketch8.addConstraint(Sketcher.Constraint("Equal", 38, 40))
sketch8.addConstraint(Sketcher.Constraint("Equal", 51, 44))
sketch8.addConstraint(Sketcher.Constraint("Equal", 47, 48))
sketch8.addConstraint(Sketcher.Constraint("Equal", 63, 57))
sketch8.addConstraint(Sketcher.Constraint("DistanceX", 1, 1, 1, 2, Q("12 mm")))
sketch8.addConstraint(Sketcher.Constraint("DistanceX", 33, 1, 33, 2, Q("2 mm")))
sketch8.addConstraint(Sketcher.Constraint("DistanceX", 37, 1, 37, 2, Q("5 mm")))
sketch8.addConstraint(Sketcher.Constraint("DistanceX", 41, 1, 41, 2, Q("3 mm")))
sketch8.addConstraint(Sketcher.Constraint("DistanceX", 49, 1, 49, 2, Q("2.5 mm")))
sketch8.addConstraint(Sketcher.Constraint("DistanceX", 59, 1, 59, 2, Q("2.1 mm")))
sketch8.addConstraint(Sketcher.Constraint("DistanceY", 0, 2, -1, 1, Q("8 mm")))
sketch8.addConstraint(Sketcher.Constraint("DistanceY", -1, 1, 8, 2, Q("5 mm")))
sketch8.addConstraint(Sketcher.Constraint("DistanceY", 16, 2, -1, 1, Q("4 mm")))
sketch8.addConstraint(Sketcher.Constraint("DistanceX", -1, 1, 40, 2, Q("21 mm")))
sketch8.addConstraint(Sketcher.Constraint("DistanceX", -1, 1, 60, 2, Q("27 mm")))
sketch8.addConstraint(Sketcher.Constraint("DistanceX", 17, 1, 17, 2, Q("1.27 mm")))
sketch8.addConstraint(Sketcher.Constraint("DistanceX", 0, 2, -1, 1, Q("12.5 mm")))
sketch8.addConstraint(Sketcher.Constraint("DistanceX", 5, 2, -1, 1, Q("3.5 mm")))
sketch8.addConstraint(Sketcher.Constraint("DistanceY", 12, 2, -1, 1, Q("12.5 mm")))
sketch8.addConstraint(Sketcher.Constraint("DistanceX", -1, 1, 13, 2, Q("15.5 mm")))
sketch8.addConstraint(Sketcher.Constraint("DistanceX", -1, 1, 16, 2, Q("17.5 mm")))
sketch8.addConstraint(Sketcher.Constraint("DistanceX", -1, 1, 29, 2, Q("27.5 mm")))
sketch8.addConstraint(Sketcher.Constraint("DistanceX", 32, 2, -1, 1, Q("15.5 mm")))
sketch8.addConstraint(Sketcher.Constraint("DistanceY", 48, 2, -1, 1, Q("7.5 mm")))
sketch8.addConstraint(Sketcher.Constraint("DistanceX", -1, 1, 56, 2, Q("23.5 mm")))
sketch8.addConstraint(Sketcher.Constraint("DistanceX", 5, 1, 5, 2, Q("2.032 mm")))
sketch8.addConstraint(Sketcher.Constraint("DistanceX", 53, 1, 53, 2, Q("1.524 mm")))
sketch8.addConstraint(Sketcher.Constraint("DistanceY", 52, 2, 52, 1, Q("3.048 mm")))
sketch8.addConstraint(Sketcher.Constraint("DistanceY", -1, 1, 4, 2, Q("7.27 mm")))
sketch8.addConstraint(Sketcher.Constraint("DistanceX", -1, 1, 20, 2, Q("19.25 mm")))
sketch8.addConstraint(Sketcher.Constraint("DistanceX", -1, 1, 24, 2, Q("24.48 mm")))
sketch8.addConstraint(Sketcher.Constraint("DistanceY", 24, 2, -1, 1, Q("3.516 mm")))
pad8 = body.newObject("PartDesign::Pad", "Pad007")
pad8.Profile = sketch8
pad8.Length = 1

doc.recompute()
